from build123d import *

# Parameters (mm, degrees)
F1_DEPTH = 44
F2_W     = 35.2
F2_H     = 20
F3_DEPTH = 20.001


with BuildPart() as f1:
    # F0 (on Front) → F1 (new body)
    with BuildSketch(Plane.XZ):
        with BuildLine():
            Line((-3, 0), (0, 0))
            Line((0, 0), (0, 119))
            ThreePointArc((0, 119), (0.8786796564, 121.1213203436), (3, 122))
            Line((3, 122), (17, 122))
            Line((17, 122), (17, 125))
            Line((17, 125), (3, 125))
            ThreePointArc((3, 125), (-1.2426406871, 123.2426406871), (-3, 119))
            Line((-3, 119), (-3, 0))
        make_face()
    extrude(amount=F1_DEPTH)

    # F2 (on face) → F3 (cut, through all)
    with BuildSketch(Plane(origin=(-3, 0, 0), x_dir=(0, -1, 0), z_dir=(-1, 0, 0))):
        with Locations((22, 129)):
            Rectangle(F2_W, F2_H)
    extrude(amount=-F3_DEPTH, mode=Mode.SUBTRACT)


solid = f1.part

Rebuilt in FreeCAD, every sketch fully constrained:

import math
import FreeCAD as App
import Part
import Sketcher
Q = App.Units.Quantity

doc = App.newDocument("Part")
params = doc.addObject("Spreadsheet::Sheet", "Params")
for row, (alias, value) in enumerate([
    ("sketch1_radius", "3 mm"),
    ("sketch1_radius2", "6 mm"),
    ("sketch1_width", "14 mm"),
    ("sketch1_height", "119 mm"),
    ("pad1_length", "44 mm"),
    ("sketch2_height", "20 mm"),
    ("sketch2_width", "35.2 mm"),
], start=1):
    params.set(f"A{row}", alias)
    params.set(f"B{row}", "=" + value)
    params.setAlias(f"B{row}", alias)

body = doc.addObject("PartDesign::Body", "Body")

# Sketch on XZ plane
sketch1 = doc.addObject("Sketcher::SketchObject", "Sketch")
body.addObject(sketch1)
sketch1.AttachmentSupport = (doc.XZ_Plane, [""])
sketch1.MapMode = "FlatFace"
sketch1.addGeometry([
    Part.LineSegment(App.Vector(-3, 0, 0), App.Vector(0, 0, 0)),  # 0
    Part.LineSegment(App.Vector(0, 0, 0), App.Vector(0, 119, 0)),  # 1
    Part.ArcOfCircle(Part.Circle(App.Vector(3, 119, 0), App.Vector(0, 0, 1), 3), math.radians(90), math.radians(180)),  # 2
    Part.LineSegment(App.Vector(3, 122, 0), App.Vector(17, 122, 0)),  # 3
    Part.LineSegment(App.Vector(17, 122, 0), App.Vector(17, 125, 0)),  # 4
    Part.LineSegment(App.Vector(17, 125, 0), App.Vector(3, 125, 0)),  # 5
    Part.ArcOfCircle(Part.Circle(App.Vector(3, 119, 0), App.Vector(0, 0, 1), 6), math.radians(90), math.radians(180)),  # 6
    Part.LineSegment(App.Vector(-3, 119, 0), App.Vector(-3, 0, 0)),  # 7
], False)
sketch1.addConstraint([
    Sketcher.Constraint("Coincident", 0, 2, 1, 1),
    Sketcher.Constraint("Tangent", 1, 2, 2, 2),
    Sketcher.Constraint("Tangent", 2, 1, 3, 1),
    Sketcher.Constraint("Coincident", 3, 2, 4, 1),
    Sketcher.Constraint("Coincident", 4, 2, 5, 1),
    Sketcher.Constraint("Tangent", 5, 2, 6, 1),
    Sketcher.Constraint("Tangent", 6, 2, 7, 1),
    Sketcher.Constraint("Coincident", 7, 2, 0, 1),
    Sketcher.Constraint("Horizontal", 0),
    Sketcher.Constraint("Vertical", 1),
    Sketcher.Constraint("Horizontal", 3),
    Sketcher.Constraint("Vertical", 4),
    Sketcher.Constraint("Horizontal", 5),
    Sketcher.Constraint("Vertical", 7),
    Sketcher.Constraint("Coincident", 0, 2, -1, 1),
    Sketcher.Constraint("Coincident", 6, 3, 2, 3),
    Sketcher.Constraint("Radius", 2, Q("3 mm")),
    Sketcher.Constraint("Radius", 6, Q("6 mm")),
    Sketcher.Constraint("DistanceX", 3, 1, 3, 2, Q("14 mm")),
    Sketcher.Constraint("DistanceY", 1, 1, 1, 2, Q("119 mm")),
])
sketch1.setExpression("Constraints[16]", "Params.sketch1_radius")
sketch1.setExpression("Constraints[17]", "Params.sketch1_radius2")
sketch1.setExpression("Constraints[18]", "Params.sketch1_width")
sketch1.setExpression("Constraints[19]", "Params.sketch1_height")
pad1 = doc.addObject("PartDesign::Pad", "Pad")
body.addObject(pad1)
pad1.Profile = sketch1
pad1.setExpression("Length", "Params.pad1_length")

# Sketch on YZ plane
sketch2 = doc.addObject("Sketcher::SketchObject", "Sketch001")
body.addObject(sketch2)
sketch2.AttachmentSupport = (doc.YZ_Plane, [""])
sketch2.MapMode = "FlatFace"
sketch2.AttachmentOffset = App.Placement(App.Vector(0, 0, -3), App.Rotation())
sketch2.addGeometry([
    Part.LineSegment(App.Vector(-4, 139, 0), App.Vector(-4, 119, 0)),
    Part.LineSegment(App.Vector(-4, 119, 0), App.Vector(-40, 119, 0)),
    Part.LineSegment(App.Vector(-40, 119, 0), App.Vector(-40, 139, 0)),
    Part.LineSegment(App.Vector(-40, 139, 0), App.Vector(-4, 139, 0)),
], False)
sketch2.addConstraint([
    Sketcher.Constraint("Coincident", 0, 2, 1, 1),
    Sketcher.Constraint("Coincident", 1, 2, 2, 1),
    Sketcher.Constraint("Coincident", 2, 2, 3, 1),
    Sketcher.Constraint("Coincident", 3, 2, 0, 1),
    Sketcher.Constraint("Vertical", 0),
    Sketcher.Constraint("Horizontal", 1),
    Sketcher.Constraint("Vertical", 2),
    Sketcher.Constraint("Horizontal", 3),
    Sketcher.Constraint("DistanceY", 0, 2, 0, 1, Q("20 mm")),
    Sketcher.Constraint("DistanceX", 1, 2, 1, 1, Q("35.2 mm")),
    Sketcher.Constraint("DistanceY", -1, 1, 0, 2, Q("119 mm")),
    Sketcher.Constraint("DistanceX", 0, 2, -1, 1, Q("4.4 mm")),
])
sketch2.setExpression("Constraints[8]", "Params.sketch2_height")
sketch2.setExpression("Constraints[9]", "Params.sketch2_width")
pocket1 = doc.addObject("PartDesign::Pocket", "Pocket")
body.addObject(pocket1)
pocket1.Profile = sketch2
pocket1.Type = "ThroughAll"
pocket1.Reversed = True

doc.recompute()
